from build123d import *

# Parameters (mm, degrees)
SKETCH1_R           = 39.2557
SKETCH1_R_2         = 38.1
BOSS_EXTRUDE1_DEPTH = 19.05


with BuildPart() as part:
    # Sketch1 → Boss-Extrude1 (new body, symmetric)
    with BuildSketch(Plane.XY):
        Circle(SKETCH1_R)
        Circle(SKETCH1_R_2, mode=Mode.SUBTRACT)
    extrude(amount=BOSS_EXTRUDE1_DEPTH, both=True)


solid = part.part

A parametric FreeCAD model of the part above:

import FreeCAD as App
import Part
import Sketcher

V = App.Vector
Q = App.Units.Quantity

doc = App.newDocument("Part")
params = doc.addObject("Spreadsheet::Sheet", "Params")
for row, (alias, value) in enumerate([
    ("sketch1_diameter", "3 in"),
    ("sketch1_diameter2", "3.091 in"),
    ("pad1_length", "1.5 in"),
], start=1):
    params.set(f"A{row}", alias)
    params.set(f"B{row}", "=" + value)
    params.setAlias(f"B{row}", alias)

body = doc.addObject("PartDesign::Body", "Body")

sketch1 = doc.addObject("Sketcher::SketchObject", "Sketch")
body.addObject(sketch1)
sketch1.AttachmentSupport = (doc.XY_Plane, [""])
sketch1.MapMode = "FlatFace"
sketch1.addGeometry(Part.Circle(V(0, 0, 0), V(0, 0, 1), 39.2557), False)
sketch1.addGeometry(Part.Circle(V(0, 0, 0), V(0, 0, 1), 38.1), False)
sketch1.addConstraint(Sketcher.Constraint("Coincident", 0, 3, -1, 1))
sketch1.addConstraint(Sketcher.Constraint("Coincident", 1, 3, -1, 1))
sketch1.addConstraint(Sketcher.Constraint("Diameter", 1, Q("3 in")))
sketch1.addConstraint(Sketcher.Constraint("Diameter", 0, Q("3.091 in")))
sketch1.setExpression("Constraints[2]", "Params.sketch1_diameter")
sketch1.setExpression("Constraints[3]", "Params.sketch1_diameter2")
pad1 = doc.addObject("PartDesign::Pad", "Pad")
body.addObject(pad1)
pad1.Profile = sketch1
pad1.setExpression("Length", "Params.pad1_length")
pad1.Midplane = True

doc.recompute()
